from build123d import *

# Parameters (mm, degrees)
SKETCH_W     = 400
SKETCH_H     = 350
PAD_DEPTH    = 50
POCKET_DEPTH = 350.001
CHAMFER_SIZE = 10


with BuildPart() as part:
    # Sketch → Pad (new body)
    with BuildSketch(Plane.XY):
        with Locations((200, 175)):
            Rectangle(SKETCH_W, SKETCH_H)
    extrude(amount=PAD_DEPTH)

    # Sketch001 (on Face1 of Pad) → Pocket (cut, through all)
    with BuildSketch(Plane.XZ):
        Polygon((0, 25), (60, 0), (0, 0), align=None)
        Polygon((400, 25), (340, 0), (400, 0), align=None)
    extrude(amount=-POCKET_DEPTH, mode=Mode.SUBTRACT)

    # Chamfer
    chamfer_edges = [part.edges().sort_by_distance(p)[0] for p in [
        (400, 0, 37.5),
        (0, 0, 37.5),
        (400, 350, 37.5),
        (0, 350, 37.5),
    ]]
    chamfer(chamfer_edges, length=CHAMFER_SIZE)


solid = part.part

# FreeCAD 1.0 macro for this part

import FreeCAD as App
import Part
import Sketcher
from FreeCAD import Vector


def edges_at(feature, points):
    """Names of the edges that pass closest to the given points."""
    edges = feature.Shape.Edges
    near = lambda p: min(range(len(edges)), key=lambda i: edges[i].distToShape(Part.Vertex(*p))[0])
    return sorted({f"Edge{near(p) + 1}" for p in points})

doc = App.newDocument("Part")
body = doc.addObject("PartDesign::Body", "Body")

# Sketch on XY plane
sketch1 = body.newObject("Sketcher::SketchObject", "Sketch")
sketch1.AttachmentSupport = (doc.getObject("XY_Plane"), [""])
sketch1.MapMode = "FlatFace"
sketch1.addGeometry([
    Part.LineSegment(Vector(0, 350, 0), Vector(0, 0, 0)),
    Part.LineSegment(Vector(0, 0, 0), Vector(400, 0, 0)),
    Part.LineSegment(Vector(400, 0, 0), Vector(400, 350, 0)),
    Part.LineSegment(Vector(400, 350, 0), Vector(0, 350, 0)),
], False)
sketch1.addConstraint([
    Sketcher.Constraint("Coincident", 0, 2, 1, 1),
    Sketcher.Constraint("Coincident", 1, 2, 2, 1),
    Sketcher.Constraint("Coincident", 2, 2, 3, 1),
    Sketcher.Constraint("Coincident", 3, 2, 0, 1),
    Sketcher.Constraint("Vertical", 0),
    Sketcher.Constraint("Horizontal", 1),
    Sketcher.Constraint("Vertical", 2),
    Sketcher.Constraint("Horizontal", 3),
    Sketcher.Constraint("Coincident", 0, 2, -1, 1),
    Sketcher.Constraint("DistanceX", 1, 1, 1, 2, 400.0),
    Sketcher.Constraint("DistanceY", 0, 2, 0, 1, 350.0),
])
pad1 = body.newObject("PartDesign::Pad", "Pad")
pad1.Profile = sketch1
pad1.Length = 50

# Sketch on XZ plane
sketch2 = body.newObject("Sketcher::SketchObject", "Sketch001")
sketch2.AttachmentSupport = (doc.getObject("XZ_Plane"), [""])
sketch2.MapMode = "FlatFace"
sketch2.addGeometry([
    Part.LineSegment(Vector(60, 0, 0), Vector(0, 25, 0)),  # 0
    Part.LineSegment(Vector(0, 25, 0), Vector(0, 0, 0)),  # 1
    Part.LineSegment(Vector(0, 0, 0), Vector(60, 0, 0)),  # 2
    Part.LineSegment(Vector(400, 25, 0), Vector(340, 0, 0)),  # 3
    Part.LineSegment(Vector(340, 0, 0), Vector(400, 0, 0)),  # 4
    Part.LineSegment(Vector(400, 0, 0), Vector(400, 25, 0)),  # 5
], False)
sketch2.addConstraint([
    Sketcher.Constraint("Coincident", 0, 2, 1, 1),
    Sketcher.Constraint("Coincident", 1, 2, 2, 1),
    Sketcher.Constraint("Coincident", 2, 2, 0, 1),
    Sketcher.Constraint("Coincident", 3, 2, 4, 1),
    Sketcher.Constraint("Coincident", 4, 2, 5, 1),
    Sketcher.Constraint("Coincident", 5, 2, 3, 1),
    Sketcher.Constraint("Vertical", 1),
    Sketcher.Constraint("Horizontal", 2),
    Sketcher.Constraint("Horizontal", 4),
    Sketcher.Constraint("Vertical", 5),
    Sketcher.Constraint("Coincident", 1, 2, -1, 1),
    Sketcher.Constraint("PointOnObject", 3, 2, -1),
    Sketcher.Constraint("Horizontal", 0, 2, 5, 2),
    Sketcher.Constraint("Equal", 2, 4),
    Sketcher.Constraint("DistanceX", 2, 1, 2, 2, 60.0),
    Sketcher.Constraint("DistanceY", 1, 2, 1, 1, 25.0),
    Sketcher.Constraint("DistanceX", -1, 1, 3, 2, 340.0),
])
pocket1 = body.newObject("PartDesign::Pocket", "Pocket")
pocket1.Profile = sketch2
pocket1.Type = "ThroughAll"
doc.recompute()

chamfer = body.newObject("PartDesign::Chamfer", "Chamfer")
chamfer.Base = (pocket1, edges_at(pocket1, [
    (400, 0, 37.5),
    (0, 0, 37.5),
    (400, 350, 37.5),
    (0, 350, 37.5),
]))
chamfer.Size = 10

doc.recompute()
